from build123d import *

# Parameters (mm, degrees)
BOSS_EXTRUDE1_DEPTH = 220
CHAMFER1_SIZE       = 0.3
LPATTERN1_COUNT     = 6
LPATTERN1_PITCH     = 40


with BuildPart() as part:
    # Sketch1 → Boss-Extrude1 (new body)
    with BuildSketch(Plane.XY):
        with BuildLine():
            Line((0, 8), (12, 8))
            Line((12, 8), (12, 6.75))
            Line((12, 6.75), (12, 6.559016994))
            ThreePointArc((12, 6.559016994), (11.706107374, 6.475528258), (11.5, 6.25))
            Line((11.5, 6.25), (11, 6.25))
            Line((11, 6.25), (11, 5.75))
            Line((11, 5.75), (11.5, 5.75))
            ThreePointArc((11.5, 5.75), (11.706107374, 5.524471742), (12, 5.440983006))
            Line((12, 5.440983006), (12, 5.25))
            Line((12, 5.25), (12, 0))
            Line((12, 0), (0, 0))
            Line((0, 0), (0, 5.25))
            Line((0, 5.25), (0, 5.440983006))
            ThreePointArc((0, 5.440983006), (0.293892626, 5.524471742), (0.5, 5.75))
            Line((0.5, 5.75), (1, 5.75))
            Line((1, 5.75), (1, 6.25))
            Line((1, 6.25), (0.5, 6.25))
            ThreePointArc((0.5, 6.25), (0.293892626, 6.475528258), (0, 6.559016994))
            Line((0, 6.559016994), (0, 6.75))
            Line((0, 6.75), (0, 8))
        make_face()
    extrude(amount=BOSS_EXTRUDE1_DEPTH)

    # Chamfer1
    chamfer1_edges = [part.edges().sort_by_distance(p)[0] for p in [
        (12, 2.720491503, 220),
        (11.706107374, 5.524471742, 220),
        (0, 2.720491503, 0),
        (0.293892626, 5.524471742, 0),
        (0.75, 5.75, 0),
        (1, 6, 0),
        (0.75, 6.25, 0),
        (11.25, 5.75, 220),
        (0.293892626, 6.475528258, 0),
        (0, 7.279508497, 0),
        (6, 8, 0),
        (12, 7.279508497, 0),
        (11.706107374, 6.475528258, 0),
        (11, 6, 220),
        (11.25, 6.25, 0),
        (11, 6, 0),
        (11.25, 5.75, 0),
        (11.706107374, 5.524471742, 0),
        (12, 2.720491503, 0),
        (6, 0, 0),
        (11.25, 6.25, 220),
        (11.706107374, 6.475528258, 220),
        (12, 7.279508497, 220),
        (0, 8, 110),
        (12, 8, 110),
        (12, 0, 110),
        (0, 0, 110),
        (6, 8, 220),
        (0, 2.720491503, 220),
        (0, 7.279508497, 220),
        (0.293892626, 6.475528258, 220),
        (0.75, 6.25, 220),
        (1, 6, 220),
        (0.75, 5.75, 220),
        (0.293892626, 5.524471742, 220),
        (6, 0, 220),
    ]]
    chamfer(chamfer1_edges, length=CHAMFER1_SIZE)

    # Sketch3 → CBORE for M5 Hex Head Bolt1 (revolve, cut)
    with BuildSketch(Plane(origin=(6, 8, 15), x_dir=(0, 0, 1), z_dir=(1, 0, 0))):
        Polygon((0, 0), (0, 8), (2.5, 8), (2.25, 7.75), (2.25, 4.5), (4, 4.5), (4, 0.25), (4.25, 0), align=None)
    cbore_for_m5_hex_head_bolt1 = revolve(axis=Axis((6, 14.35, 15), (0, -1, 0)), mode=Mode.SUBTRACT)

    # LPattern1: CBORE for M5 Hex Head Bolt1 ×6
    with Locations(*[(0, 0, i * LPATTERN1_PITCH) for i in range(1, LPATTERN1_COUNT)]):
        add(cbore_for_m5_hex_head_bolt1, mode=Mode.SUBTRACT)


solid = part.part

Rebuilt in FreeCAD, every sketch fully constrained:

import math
import FreeCAD as App
import Part
import Sketcher
from FreeCAD import Vector
Q = App.Units.Quantity


def edges_at(feature, points):
    """Names of the edges that pass closest to the given points."""
    edges = feature.Shape.Edges
    near = lambda p: min(range(len(edges)), key=lambda i: edges[i].distToShape(Part.Vertex(*p))[0])
    return sorted({f"Edge{near(p) + 1}" for p in points})

doc = App.newDocument("Part")
body = doc.addObject("PartDesign::Body", "Body")

# Sketch on XY plane
sketch1 = body.newObject("Sketcher::SketchObject", "Sketch")
sketch1.AttachmentSupport = (doc.getObject("XY_Plane"), [""])
sketch1.MapMode = "FlatFace"
sketch1.addGeometry(Part.LineSegment(Vector(12, 8, 0), Vector(0, 8, 0)), False)
sketch1.addGeometry(Part.LineSegment(Vector(0, 8, 0), Vector(0, 6.6, 0)), False)
sketch1.addGeometry(Part.ArcOfCircle(Part.Circle(Vector(0, 6, 0), Vector(0, 0, 1), 0.6), math.radians(27), math.radians(90)), False)
sketch1.addGeometry(Part.LineSegment(Vector(0.5, 6.2, 0), Vector(1, 6.2, 0)), False)
sketch1.addGeometry(Part.LineSegment(Vector(1, 6.2, 0), Vector(1, 5.8, 0)), False)
sketch1.addGeometry(Part.LineSegment(Vector(1, 5.8, 0), Vector(0.5, 5.8, 0)), False)
sketch1.addGeometry(Part.ArcOfCircle(Part.Circle(Vector(0, 6, 0), Vector(0, 0, 1), 0.6), math.radians(-90), math.radians(-27)), False)
sketch1.addGeometry(Part.LineSegment(Vector(0, 5.4, 0), Vector(0, 0, 0)), False)
sketch1.addGeometry(Part.LineSegment(Vector(0, 0, 0), Vector(12, 0, 0)), False)
sketch1.addGeometry(Part.LineSegment(Vector(12, 0, 0), Vector(12, 5.4, 0)), False)
sketch1.addGeometry(Part.ArcOfCircle(Part.Circle(Vector(12, 6, 0), Vector(0, 0, 1), 0.6), math.radians(-153), math.radians(-90)), False)
sketch1.addGeometry(Part.LineSegment(Vector(11.5, 5.8, 0), Vector(11, 5.8, 0)), False)
sketch1.addGeometry(Part.LineSegment(Vector(11, 5.8, 0), Vector(11, 6.2, 0)), False)
sketch1.addGeometry(Part.LineSegment(Vector(11, 6.2, 0), Vector(11.5, 6.2, 0)), False)
sketch1.addGeometry(Part.ArcOfCircle(Part.Circle(Vector(12, 6, 0), Vector(0, 0, 1), 0.6), math.radians(90), math.radians(153)), False)
sketch1.addGeometry(Part.LineSegment(Vector(12, 6.6, 0), Vector(12, 8, 0)), False)
sketch1.addConstraint(Sketcher.Constraint("Coincident", 0, 2, 1, 1))
sketch1.addConstraint(Sketcher.Constraint("Coincident", 1, 2, 2, 2))
sketch1.addConstraint(Sketcher.Constraint("Coincident", 2, 1, 3, 1))
sketch1.addConstraint(Sketcher.Constraint("Coincident", 3, 2, 4, 1))
sketch1.addConstraint(Sketcher.Constraint("Coincident", 4, 2, 5, 1))
sketch1.addConstraint(Sketcher.Constraint("Coincident", 5, 2, 6, 2))
sketch1.addConstraint(Sketcher.Constraint("Coincident", 6, 1, 7, 1))
sketch1.addConstraint(Sketcher.Constraint("Coincident", 7, 2, 8, 1))
sketch1.addConstraint(Sketcher.Constraint("Coincident", 8, 2, 9, 1))
sketch1.addConstraint(Sketcher.Constraint("Coincident", 9, 2, 10, 2))
sketch1.addConstraint(Sketcher.Constraint("Coincident", 10, 1, 11, 1))
sketch1.addConstraint(Sketcher.Constraint("Coincident", 11, 2, 12, 1))
sketch1.addConstraint(Sketcher.Constraint("Coincident", 12, 2, 13, 1))
sketch1.addConstraint(Sketcher.Constraint("Coincident", 13, 2, 14, 2))
sketch1.addConstraint(Sketcher.Constraint("Coincident", 14, 1, 15, 1))
sketch1.addConstraint(Sketcher.Constraint("Coincident", 15, 2, 0, 1))
sketch1.addConstraint(Sketcher.Constraint("Horizontal", 0))
sketch1.addConstraint(Sketcher.Constraint("Vertical", 1))
sketch1.addConstraint(Sketcher.Constraint("Horizontal", 3))
sketch1.addConstraint(Sketcher.Constraint("Vertical", 4))
sketch1.addConstraint(Sketcher.Constraint("Horizontal", 5))
sketch1.addConstraint(Sketcher.Constraint("Vertical", 7))
sketch1.addConstraint(Sketcher.Constraint("Horizontal", 8))
sketch1.addConstraint(Sketcher.Constraint("Vertical", 9))
sketch1.addConstraint(Sketcher.Constraint("Horizontal", 11))
sketch1.addConstraint(Sketcher.Constraint("Vertical", 12))
sketch1.addConstraint(Sketcher.Constraint("Horizontal", 13))
sketch1.addConstraint(Sketcher.Constraint("Vertical", 15))
sketch1.addConstraint(Sketcher.Constraint("Coincident", 7, 2, -1, 1))
sketch1.addConstraint(Sketcher.Constraint("Coincident", 6, 3, 2, 3))
sketch1.addConstraint(Sketcher.Constraint("Coincident", 14, 3, 10, 3))
sketch1.addConstraint(Sketcher.Constraint("Equal", 2, 6))
sketch1.addConstraint(Sketcher.Constraint("Equal", 6, 10))
sketch1.addConstraint(Sketcher.Constraint("Equal", 10, 14))
sketch1.addConstraint(Sketcher.Constraint("PointOnObject", 2, 3, -2))
sketch1.addConstraint(Sketcher.Constraint("PointOnObject", 0, 2, -2))
sketch1.addConstraint(Sketcher.Constraint("Horizontal", 6, 3, 10, 3))
sketch1.addConstraint(Sketcher.Constraint("Horizontal", 5, 2, 10, 1))
sketch1.addConstraint(Sketcher.Constraint("Horizontal", 3, 2, 12, 2))
sketch1.addConstraint(Sketcher.Constraint("Vertical", 2, 1, 5, 2))
sketch1.addConstraint(Sketcher.Constraint("Vertical", 14, 3, 8, 2))
sketch1.addConstraint(Sketcher.Constraint("Vertical", 9, 2, 14, 1))
sketch1.addConstraint(Sketcher.Constraint("Equal", 5, 11))
sketch1.addConstraint(Sketcher.Constraint("Equal", 13, 4))
sketch1.addConstraint(Sketcher.Constraint("DistanceX", 0, 2, 0, 1, Q("12 mm")))
sketch1.addConstraint(Sketcher.Constraint("DistanceX", 3, 1, 3, 2, Q("0.5 mm")))
sketch1.addConstraint(Sketcher.Constraint("DistanceY", -1, 1, 2, 3, Q("6 mm")))
sketch1.addConstraint(Sketcher.Constraint("DistanceY", -1, 1, 0, 2, Q("8 mm")))
sketch1.addConstraint(Sketcher.Constraint("DistanceX", -1, 1, 3, 2, Q("1 mm")))
pad1 = body.newObject("PartDesign::Pad", "Pad")
pad1.Profile = sketch1
pad1.Length = 220
doc.recompute()

chamfer = body.newObject("PartDesign::Chamfer", "Chamfer")
chamfer.Base = (pad1, edges_at(pad1, [
    (12, 2.72, 220),
    (11.706, 5.524, 220),
    (0, 2.72, 0),
    (0.294, 5.524, 0),
    (0.75, 5.75, 0),
    (1, 6, 0),
    (0.75, 6.25, 0),
    (11.25, 5.75, 220),
    (0.294, 6.476, 0),
    (0, 7.28, 0),
    (6, 8, 0),
    (12, 7.28, 0),
    (11.706, 6.476, 0),
    (11, 6, 220),
    (11.25, 6.25, 0),
    (11, 6, 0),
    (11.25, 5.75, 0),
    (11.706, 5.524, 0),
    (12, 2.72, 0),
    (6, 0, 0),
    (11.25, 6.25, 220),
    (11.706, 6.476, 220),
    (12, 7.28, 220),
    (0, 8, 110),
    (12, 8, 110),
    (12, 0, 110),
    (0, 0, 110),
    (6, 8, 220),
    (0, 2.72, 220),
    (0, 7.28, 220),
    (0.294, 6.476, 220),
    (0.75, 6.25, 220),
    (1, 6, 220),
    (0.75, 5.75, 220),
    (0.294, 5.524, 220),
    (6, 0, 220),
]))
chamfer.Size = 0.3

# Sketch on YZ plane
sketch2 = body.newObject("Sketcher::SketchObject", "Sketch001")
sketch2.AttachmentSupport = (doc.getObject("YZ_Plane"), [""])
sketch2.MapMode = "FlatFace"
sketch2.AttachmentOffset = App.Placement(Vector(0, 0, 6), App.Rotation())
sketch2.addGeometry(Part.LineSegment(Vector(0, 15, 0), Vector(8, 15, 0)), False)
sketch2.addGeometry(Part.LineSegment(Vector(8, 15, 0), Vector(8, 19.25, 0)), False)
sketch2.addGeometry(Part.LineSegment(Vector(8, 19.25, 0), Vector(7.75, 19, 0)), False)
sketch2.addGeometry(Part.LineSegment(Vector(7.75, 19, 0), Vector(3.5, 19, 0)), False)
sketch2.addGeometry(Part.LineSegment(Vector(3.5, 19, 0), Vector(3.5, 17.25, 0)), False)
sketch2.addGeometry(Part.LineSegment(Vector(3.5, 17.25, 0), Vector(0.25, 17.25, 0)), False)
sketch2.addGeometry(Part.LineSegment(Vector(0.25, 17.25, 0), Vector(0, 17.5, 0)), False)
sketch2.addGeometry(Part.LineSegment(Vector(0, 17.5, 0), Vector(0, 15, 0)), False)
sketch2.addGeometry(Part.LineSegment(Vector(8, 15, 0), Vector(0, 15, 0)), True)  # axis
sketch2.addConstraint(Sketcher.Constraint("Coincident", 0, 2, 1, 1))
sketch2.addConstraint(Sketcher.Constraint("Coincident", 1, 2, 2, 1))
sketch2.addConstraint(Sketcher.Constraint("Coincident", 2, 2, 3, 1))
sketch2.addConstraint(Sketcher.Constraint("Coincident", 3, 2, 4, 1))
sketch2.addConstraint(Sketcher.Constraint("Coincident", 4, 2, 5, 1))
sketch2.addConstraint(Sketcher.Constraint("Coincident", 5, 2, 6, 1))
sketch2.addConstraint(Sketcher.Constraint("Coincident", 6, 2, 7, 1))
sketch2.addConstraint(Sketcher.Constraint("Coincident", 7, 2, 0, 1))
sketch2.addConstraint(Sketcher.Constraint("Horizontal", 0))
sketch2.addConstraint(Sketcher.Constraint("Vertical", 1))
sketch2.addConstraint(Sketcher.Constraint("Horizontal", 3))
sketch2.addConstraint(Sketcher.Constraint("Vertical", 4))
sketch2.addConstraint(Sketcher.Constraint("Horizontal", 5))
sketch2.addConstraint(Sketcher.Constraint("Vertical", 7))
sketch2.addConstraint(Sketcher.Constraint("Horizontal", 8))
sketch2.addConstraint(Sketcher.Constraint("Coincident", 8, 1, 0, 2))
sketch2.addConstraint(Sketcher.Constraint("PointOnObject", 6, 2, -2))
sketch2.addConstraint(Sketcher.Constraint("PointOnObject", 8, 2, -2))
sketch2.addConstraint(Sketcher.Constraint("Perpendicular", 2, 6))
sketch2.addConstraint(Sketcher.Constraint("Equal", 3, 1))
sketch2.addConstraint(Sketcher.Constraint("Equal", 2, 6))
sketch2.addConstraint(Sketcher.Constraint("DistanceX", 0, 1, 0, 2, Q("8 mm")))
sketch2.addConstraint(Sketcher.Constraint("Angle", 2, Q("-135 deg")))
sketch2.addConstraint(Sketcher.Constraint("DistanceY", 7, 2, 7, 1, Q("2.5 mm")))
sketch2.addConstraint(Sketcher.Constraint("DistanceY", -1, 1, 0, 2, Q("15 mm")))
sketch2.addConstraint(Sketcher.Constraint("DistanceY", -1, 1, 2, 2, Q("19 mm")))
sketch2.addConstraint(Sketcher.Constraint("DistanceY", 4, 2, 1, 2, Q("2 mm")))
groove = body.newObject("PartDesign::Groove", "Groove")
groove.Profile = sketch2
groove.ReferenceAxis = (sketch2, ["Axis0"])
groove.Angle = 360
doc.recompute()

linearpattern = body.newObject("PartDesign::LinearPattern", "LinearPattern")
linearpattern.Originals = [groove]
linearpattern.Direction = (doc.getObject("Z_Axis"), [""])
linearpattern.Mode = "offset"
linearpattern.Offset = 40
linearpattern.Occurrences = 6
body.Tip = linearpattern

doc.recompute()
